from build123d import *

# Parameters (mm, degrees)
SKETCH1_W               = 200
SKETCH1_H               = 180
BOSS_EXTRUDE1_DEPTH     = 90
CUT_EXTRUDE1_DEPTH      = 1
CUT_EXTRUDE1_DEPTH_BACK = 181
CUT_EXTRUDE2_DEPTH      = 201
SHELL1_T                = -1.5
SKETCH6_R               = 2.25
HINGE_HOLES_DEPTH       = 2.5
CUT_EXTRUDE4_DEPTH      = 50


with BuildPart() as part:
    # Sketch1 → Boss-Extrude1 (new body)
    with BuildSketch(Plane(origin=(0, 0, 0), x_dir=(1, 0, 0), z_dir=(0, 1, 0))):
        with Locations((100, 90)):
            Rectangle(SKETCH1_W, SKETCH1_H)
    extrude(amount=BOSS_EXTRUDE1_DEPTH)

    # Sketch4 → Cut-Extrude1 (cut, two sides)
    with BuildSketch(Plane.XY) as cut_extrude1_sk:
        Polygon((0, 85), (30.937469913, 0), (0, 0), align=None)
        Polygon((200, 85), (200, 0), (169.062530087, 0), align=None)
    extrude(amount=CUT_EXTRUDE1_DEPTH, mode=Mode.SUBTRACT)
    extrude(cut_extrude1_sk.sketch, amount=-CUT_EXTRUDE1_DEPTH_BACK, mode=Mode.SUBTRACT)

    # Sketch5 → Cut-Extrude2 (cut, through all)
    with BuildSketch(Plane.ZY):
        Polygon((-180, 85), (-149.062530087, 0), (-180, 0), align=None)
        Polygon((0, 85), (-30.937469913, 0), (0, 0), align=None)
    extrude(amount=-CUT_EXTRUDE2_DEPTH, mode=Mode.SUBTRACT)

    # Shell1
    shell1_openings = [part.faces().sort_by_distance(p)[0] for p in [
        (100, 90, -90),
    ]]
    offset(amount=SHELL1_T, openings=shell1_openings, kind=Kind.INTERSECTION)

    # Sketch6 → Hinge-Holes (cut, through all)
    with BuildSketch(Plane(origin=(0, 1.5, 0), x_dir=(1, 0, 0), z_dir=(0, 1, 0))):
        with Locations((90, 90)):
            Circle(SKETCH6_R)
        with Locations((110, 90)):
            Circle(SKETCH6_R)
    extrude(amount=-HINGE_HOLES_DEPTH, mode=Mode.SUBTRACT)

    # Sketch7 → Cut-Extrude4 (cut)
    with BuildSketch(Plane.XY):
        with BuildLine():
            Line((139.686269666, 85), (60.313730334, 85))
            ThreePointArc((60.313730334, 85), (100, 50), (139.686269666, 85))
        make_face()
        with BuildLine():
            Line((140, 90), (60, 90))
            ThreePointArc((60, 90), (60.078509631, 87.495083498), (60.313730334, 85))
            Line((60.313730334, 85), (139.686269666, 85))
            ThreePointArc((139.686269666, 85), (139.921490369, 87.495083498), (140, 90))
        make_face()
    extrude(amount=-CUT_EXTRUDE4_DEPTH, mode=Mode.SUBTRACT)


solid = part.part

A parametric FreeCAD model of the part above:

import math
import FreeCAD as App
import Part
import Sketcher
Q = App.Units.Quantity


def faces_at(feature, points):
    """Names of the faces that lie closest to the given points."""
    faces = feature.Shape.Faces
    near = lambda p: min(range(len(faces)), key=lambda i: faces[i].distToShape(Part.Vertex(*p))[0])
    return sorted({f"Face{near(p) + 1}" for p in points})


def add_polygon(sketch, points):
    """Adds a closed chain of lines whose ends are joined by coincident constraints."""
    first, n = sketch.GeometryCount, len(points)
    for a, b in zip(points, points[1:] + points[:1]):
        sketch.addGeometry(Part.LineSegment(App.Vector(*a, 0), App.Vector(*b, 0)), False)
    for i in range(n):
        sketch.addConstraint(Sketcher.Constraint("Coincident", first + i, 2, first + (i + 1) % n, 1))

doc = App.newDocument("Part")
body = doc.addObject("PartDesign::Body", "Body")

# Sketch on XZ plane
sketch1 = body.newObject("Sketcher::SketchObject", "Sketch")
sketch1.AttachmentSupport = (doc.getObject("XZ_Plane"), [""])
sketch1.MapMode = "FlatFace"
add_polygon(sketch1, [(0, -180), (0, 0), (200, 0), (200, -180)])  # lines 0-3
sketch1.addConstraint([
    Sketcher.Constraint("Vertical", 0),
    Sketcher.Constraint("Horizontal", 1),
    Sketcher.Constraint("Vertical", 2),
    Sketcher.Constraint("Horizontal", 3),
    Sketcher.Constraint("Coincident", 0, 2, -1, 1),
    Sketcher.Constraint("DistanceX", 1, 1, 1, 2, Q("200 mm")),
    Sketcher.Constraint("DistanceY", 0, 1, 0, 2, Q("180 mm")),
])
pad1 = body.newObject("PartDesign::Pad", "Pad")
pad1.Profile = sketch1
pad1.Length = 90
pad1.Reversed = True

# Sketch on XY plane
sketch2 = body.newObject("Sketcher::SketchObject", "Sketch001")
sketch2.AttachmentSupport = (doc.getObject("XY_Plane"), [""])
sketch2.MapMode = "FlatFace"
add_polygon(sketch2, [(31, 0), (0, 85), (0, 0)])  # lines 0-2
add_polygon(sketch2, [(200, 0), (200, 85), (169, 0)])  # lines 3-5
sketch2.addConstraint([
    Sketcher.Constraint("Vertical", 1),
    Sketcher.Constraint("Horizontal", 2),
    Sketcher.Constraint("Vertical", 3),
    Sketcher.Constraint("Horizontal", 5),
    Sketcher.Constraint("Coincident", 1, 2, -1, 1),
    Sketcher.Constraint("PointOnObject", 4, 2, -1),
    Sketcher.Constraint("Horizontal", 0, 2, 3, 2),
    Sketcher.Constraint("Equal", 2, 5),
    Sketcher.Constraint("DistanceY", 1, 2, 1, 1, Q("85 mm")),
    Sketcher.Constraint("Angle", 0, Q("110 deg")),
    Sketcher.Constraint("DistanceX", -1, 1, 3, 2, Q("200 mm")),
])
pocket1 = body.newObject("PartDesign::Pocket", "Pocket")
pocket1.Profile = sketch2
pocket1.Type = "ThroughAll"
pocket1.Midplane = True

# Sketch on YZ plane
sketch3 = body.newObject("Sketcher::SketchObject", "Sketch002")
sketch3.AttachmentSupport = (doc.getObject("YZ_Plane"), [""])
sketch3.MapMode = "FlatFace"
add_polygon(sketch3, [(0, -149), (85, -180), (0, -180)])  # lines 0-2
add_polygon(sketch3, [(85, 0), (0, -31), (0, 0)])  # lines 3-5
sketch3.addConstraint([
    Sketcher.Constraint("Horizontal", 1),
    Sketcher.Constraint("Vertical", 2),
    Sketcher.Constraint("Vertical", 4),
    Sketcher.Constraint("Horizontal", 5),
    Sketcher.Constraint("Coincident", 4, 2, -1, 1),
    Sketcher.Constraint("PointOnObject", 1, 2, -2),
    Sketcher.Constraint("Vertical", 0, 2, 5, 2),
    Sketcher.Constraint("Equal", 2, 4),
    Sketcher.Constraint("DistanceX", 1, 2, 1, 1, Q("85 mm")),
    Sketcher.Constraint("Angle", 0, Q("-20 deg")),
    Sketcher.Constraint("DistanceY", 0, 2, -1, 1, Q("180 mm")),
])
pocket2 = body.newObject("PartDesign::Pocket", "Pocket001")
pocket2.Profile = sketch3
pocket2.Type = "ThroughAll"
pocket2.Reversed = True
doc.recompute()

thickness = body.newObject("PartDesign::Thickness", "Thickness")
thickness.Base = (pocket2, faces_at(pocket2, [(100, 90, -90)]))
thickness.Value = 1.5
thickness.Reversed = True
thickness.Join = "Intersection"

# Sketch on XZ plane
sketch4 = body.newObject("Sketcher::SketchObject", "Sketch003")
sketch4.AttachmentSupport = (doc.getObject("XZ_Plane"), [""])
sketch4.MapMode = "FlatFace"
sketch4.AttachmentOffset = App.Placement(App.Vector(0, 0, -1.5), App.Rotation())
sketch4.addGeometry([
    Part.Circle(App.Vector(90, -90, 0), App.Vector(0, 0, 1), 2.2),
    Part.Circle(App.Vector(110, -90, 0), App.Vector(0, 0, 1), 2.2),
], False)
sketch4.addConstraint([
    Sketcher.Constraint("Equal", 0, 1),
    Sketcher.Constraint("Horizontal", 0, 3, 1, 3),
    Sketcher.Constraint("Diameter", 0, Q("4.5 mm")),
    Sketcher.Constraint("DistanceX", -1, 1, 0, 3, Q("90 mm")),
    Sketcher.Constraint("DistanceY", 0, 3, -1, 1, Q("90 mm")),
    Sketcher.Constraint("DistanceX", -1, 1, 1, 3, Q("110 mm")),
])
pocket3 = body.newObject("PartDesign::Pocket", "Pocket002")
pocket3.Profile = sketch4
pocket3.Type = "ThroughAll"
pocket3.Reversed = True

# Sketch on XY plane
sketch5 = body.newObject("Sketcher::SketchObject", "Sketch004")
sketch5.AttachmentSupport = (doc.getObject("XY_Plane"), [""])
sketch5.MapMode = "FlatFace"
sketch5.addGeometry([
    Part.ArcOfCircle(Part.Circle(App.Vector(100, 90, 0), App.Vector(0, 0, 1), 40), math.radians(-173), math.radians(-7)),
    Part.ArcOfCircle(Part.Circle(App.Vector(100, 90, 0), App.Vector(0, 0, 1), 40), math.radians(-7.18), math.radians(0)),
    Part.LineSegment(App.Vector(140, 90, 0), App.Vector(60, 90, 0)),
    Part.ArcOfCircle(Part.Circle(App.Vector(100, 90, 0), App.Vector(0, 0, 1), 40), math.radians(-180), math.radians(-172.82)),
], False)
sketch5.addConstraint([
    Sketcher.Constraint("Tangent", 0, 2, 1, 1),
    Sketcher.Constraint("Coincident", 1, 2, 2, 1),
    Sketcher.Constraint("Coincident", 2, 2, 3, 1),
    Sketcher.Constraint("Tangent", 3, 2, 0, 1),
    Sketcher.Constraint("Horizontal", 2),
    Sketcher.Constraint("Equal", 0, 1),
    Sketcher.Constraint("Equal", 1, 3),
    Sketcher.Constraint("Horizontal", 3, 3, 1, 2),
    Sketcher.Constraint("Horizontal", 0, 2, 3, 2),
    Sketcher.Constraint("Radius", 0, Q("40 mm")),
    Sketcher.Constraint("DistanceX", -1, 1, 0, 3, Q("100 mm")),
    Sketcher.Constraint("DistanceY", -1, 1, 0, 3, Q("90 mm")),
    Sketcher.Constraint("DistanceY", -1, 1, 0, 2, Q("85 mm")),
])
pocket4 = body.newObject("PartDesign::Pocket", "Pocket003")
pocket4.Profile = sketch5
pocket4.Length = 50

doc.recompute()
